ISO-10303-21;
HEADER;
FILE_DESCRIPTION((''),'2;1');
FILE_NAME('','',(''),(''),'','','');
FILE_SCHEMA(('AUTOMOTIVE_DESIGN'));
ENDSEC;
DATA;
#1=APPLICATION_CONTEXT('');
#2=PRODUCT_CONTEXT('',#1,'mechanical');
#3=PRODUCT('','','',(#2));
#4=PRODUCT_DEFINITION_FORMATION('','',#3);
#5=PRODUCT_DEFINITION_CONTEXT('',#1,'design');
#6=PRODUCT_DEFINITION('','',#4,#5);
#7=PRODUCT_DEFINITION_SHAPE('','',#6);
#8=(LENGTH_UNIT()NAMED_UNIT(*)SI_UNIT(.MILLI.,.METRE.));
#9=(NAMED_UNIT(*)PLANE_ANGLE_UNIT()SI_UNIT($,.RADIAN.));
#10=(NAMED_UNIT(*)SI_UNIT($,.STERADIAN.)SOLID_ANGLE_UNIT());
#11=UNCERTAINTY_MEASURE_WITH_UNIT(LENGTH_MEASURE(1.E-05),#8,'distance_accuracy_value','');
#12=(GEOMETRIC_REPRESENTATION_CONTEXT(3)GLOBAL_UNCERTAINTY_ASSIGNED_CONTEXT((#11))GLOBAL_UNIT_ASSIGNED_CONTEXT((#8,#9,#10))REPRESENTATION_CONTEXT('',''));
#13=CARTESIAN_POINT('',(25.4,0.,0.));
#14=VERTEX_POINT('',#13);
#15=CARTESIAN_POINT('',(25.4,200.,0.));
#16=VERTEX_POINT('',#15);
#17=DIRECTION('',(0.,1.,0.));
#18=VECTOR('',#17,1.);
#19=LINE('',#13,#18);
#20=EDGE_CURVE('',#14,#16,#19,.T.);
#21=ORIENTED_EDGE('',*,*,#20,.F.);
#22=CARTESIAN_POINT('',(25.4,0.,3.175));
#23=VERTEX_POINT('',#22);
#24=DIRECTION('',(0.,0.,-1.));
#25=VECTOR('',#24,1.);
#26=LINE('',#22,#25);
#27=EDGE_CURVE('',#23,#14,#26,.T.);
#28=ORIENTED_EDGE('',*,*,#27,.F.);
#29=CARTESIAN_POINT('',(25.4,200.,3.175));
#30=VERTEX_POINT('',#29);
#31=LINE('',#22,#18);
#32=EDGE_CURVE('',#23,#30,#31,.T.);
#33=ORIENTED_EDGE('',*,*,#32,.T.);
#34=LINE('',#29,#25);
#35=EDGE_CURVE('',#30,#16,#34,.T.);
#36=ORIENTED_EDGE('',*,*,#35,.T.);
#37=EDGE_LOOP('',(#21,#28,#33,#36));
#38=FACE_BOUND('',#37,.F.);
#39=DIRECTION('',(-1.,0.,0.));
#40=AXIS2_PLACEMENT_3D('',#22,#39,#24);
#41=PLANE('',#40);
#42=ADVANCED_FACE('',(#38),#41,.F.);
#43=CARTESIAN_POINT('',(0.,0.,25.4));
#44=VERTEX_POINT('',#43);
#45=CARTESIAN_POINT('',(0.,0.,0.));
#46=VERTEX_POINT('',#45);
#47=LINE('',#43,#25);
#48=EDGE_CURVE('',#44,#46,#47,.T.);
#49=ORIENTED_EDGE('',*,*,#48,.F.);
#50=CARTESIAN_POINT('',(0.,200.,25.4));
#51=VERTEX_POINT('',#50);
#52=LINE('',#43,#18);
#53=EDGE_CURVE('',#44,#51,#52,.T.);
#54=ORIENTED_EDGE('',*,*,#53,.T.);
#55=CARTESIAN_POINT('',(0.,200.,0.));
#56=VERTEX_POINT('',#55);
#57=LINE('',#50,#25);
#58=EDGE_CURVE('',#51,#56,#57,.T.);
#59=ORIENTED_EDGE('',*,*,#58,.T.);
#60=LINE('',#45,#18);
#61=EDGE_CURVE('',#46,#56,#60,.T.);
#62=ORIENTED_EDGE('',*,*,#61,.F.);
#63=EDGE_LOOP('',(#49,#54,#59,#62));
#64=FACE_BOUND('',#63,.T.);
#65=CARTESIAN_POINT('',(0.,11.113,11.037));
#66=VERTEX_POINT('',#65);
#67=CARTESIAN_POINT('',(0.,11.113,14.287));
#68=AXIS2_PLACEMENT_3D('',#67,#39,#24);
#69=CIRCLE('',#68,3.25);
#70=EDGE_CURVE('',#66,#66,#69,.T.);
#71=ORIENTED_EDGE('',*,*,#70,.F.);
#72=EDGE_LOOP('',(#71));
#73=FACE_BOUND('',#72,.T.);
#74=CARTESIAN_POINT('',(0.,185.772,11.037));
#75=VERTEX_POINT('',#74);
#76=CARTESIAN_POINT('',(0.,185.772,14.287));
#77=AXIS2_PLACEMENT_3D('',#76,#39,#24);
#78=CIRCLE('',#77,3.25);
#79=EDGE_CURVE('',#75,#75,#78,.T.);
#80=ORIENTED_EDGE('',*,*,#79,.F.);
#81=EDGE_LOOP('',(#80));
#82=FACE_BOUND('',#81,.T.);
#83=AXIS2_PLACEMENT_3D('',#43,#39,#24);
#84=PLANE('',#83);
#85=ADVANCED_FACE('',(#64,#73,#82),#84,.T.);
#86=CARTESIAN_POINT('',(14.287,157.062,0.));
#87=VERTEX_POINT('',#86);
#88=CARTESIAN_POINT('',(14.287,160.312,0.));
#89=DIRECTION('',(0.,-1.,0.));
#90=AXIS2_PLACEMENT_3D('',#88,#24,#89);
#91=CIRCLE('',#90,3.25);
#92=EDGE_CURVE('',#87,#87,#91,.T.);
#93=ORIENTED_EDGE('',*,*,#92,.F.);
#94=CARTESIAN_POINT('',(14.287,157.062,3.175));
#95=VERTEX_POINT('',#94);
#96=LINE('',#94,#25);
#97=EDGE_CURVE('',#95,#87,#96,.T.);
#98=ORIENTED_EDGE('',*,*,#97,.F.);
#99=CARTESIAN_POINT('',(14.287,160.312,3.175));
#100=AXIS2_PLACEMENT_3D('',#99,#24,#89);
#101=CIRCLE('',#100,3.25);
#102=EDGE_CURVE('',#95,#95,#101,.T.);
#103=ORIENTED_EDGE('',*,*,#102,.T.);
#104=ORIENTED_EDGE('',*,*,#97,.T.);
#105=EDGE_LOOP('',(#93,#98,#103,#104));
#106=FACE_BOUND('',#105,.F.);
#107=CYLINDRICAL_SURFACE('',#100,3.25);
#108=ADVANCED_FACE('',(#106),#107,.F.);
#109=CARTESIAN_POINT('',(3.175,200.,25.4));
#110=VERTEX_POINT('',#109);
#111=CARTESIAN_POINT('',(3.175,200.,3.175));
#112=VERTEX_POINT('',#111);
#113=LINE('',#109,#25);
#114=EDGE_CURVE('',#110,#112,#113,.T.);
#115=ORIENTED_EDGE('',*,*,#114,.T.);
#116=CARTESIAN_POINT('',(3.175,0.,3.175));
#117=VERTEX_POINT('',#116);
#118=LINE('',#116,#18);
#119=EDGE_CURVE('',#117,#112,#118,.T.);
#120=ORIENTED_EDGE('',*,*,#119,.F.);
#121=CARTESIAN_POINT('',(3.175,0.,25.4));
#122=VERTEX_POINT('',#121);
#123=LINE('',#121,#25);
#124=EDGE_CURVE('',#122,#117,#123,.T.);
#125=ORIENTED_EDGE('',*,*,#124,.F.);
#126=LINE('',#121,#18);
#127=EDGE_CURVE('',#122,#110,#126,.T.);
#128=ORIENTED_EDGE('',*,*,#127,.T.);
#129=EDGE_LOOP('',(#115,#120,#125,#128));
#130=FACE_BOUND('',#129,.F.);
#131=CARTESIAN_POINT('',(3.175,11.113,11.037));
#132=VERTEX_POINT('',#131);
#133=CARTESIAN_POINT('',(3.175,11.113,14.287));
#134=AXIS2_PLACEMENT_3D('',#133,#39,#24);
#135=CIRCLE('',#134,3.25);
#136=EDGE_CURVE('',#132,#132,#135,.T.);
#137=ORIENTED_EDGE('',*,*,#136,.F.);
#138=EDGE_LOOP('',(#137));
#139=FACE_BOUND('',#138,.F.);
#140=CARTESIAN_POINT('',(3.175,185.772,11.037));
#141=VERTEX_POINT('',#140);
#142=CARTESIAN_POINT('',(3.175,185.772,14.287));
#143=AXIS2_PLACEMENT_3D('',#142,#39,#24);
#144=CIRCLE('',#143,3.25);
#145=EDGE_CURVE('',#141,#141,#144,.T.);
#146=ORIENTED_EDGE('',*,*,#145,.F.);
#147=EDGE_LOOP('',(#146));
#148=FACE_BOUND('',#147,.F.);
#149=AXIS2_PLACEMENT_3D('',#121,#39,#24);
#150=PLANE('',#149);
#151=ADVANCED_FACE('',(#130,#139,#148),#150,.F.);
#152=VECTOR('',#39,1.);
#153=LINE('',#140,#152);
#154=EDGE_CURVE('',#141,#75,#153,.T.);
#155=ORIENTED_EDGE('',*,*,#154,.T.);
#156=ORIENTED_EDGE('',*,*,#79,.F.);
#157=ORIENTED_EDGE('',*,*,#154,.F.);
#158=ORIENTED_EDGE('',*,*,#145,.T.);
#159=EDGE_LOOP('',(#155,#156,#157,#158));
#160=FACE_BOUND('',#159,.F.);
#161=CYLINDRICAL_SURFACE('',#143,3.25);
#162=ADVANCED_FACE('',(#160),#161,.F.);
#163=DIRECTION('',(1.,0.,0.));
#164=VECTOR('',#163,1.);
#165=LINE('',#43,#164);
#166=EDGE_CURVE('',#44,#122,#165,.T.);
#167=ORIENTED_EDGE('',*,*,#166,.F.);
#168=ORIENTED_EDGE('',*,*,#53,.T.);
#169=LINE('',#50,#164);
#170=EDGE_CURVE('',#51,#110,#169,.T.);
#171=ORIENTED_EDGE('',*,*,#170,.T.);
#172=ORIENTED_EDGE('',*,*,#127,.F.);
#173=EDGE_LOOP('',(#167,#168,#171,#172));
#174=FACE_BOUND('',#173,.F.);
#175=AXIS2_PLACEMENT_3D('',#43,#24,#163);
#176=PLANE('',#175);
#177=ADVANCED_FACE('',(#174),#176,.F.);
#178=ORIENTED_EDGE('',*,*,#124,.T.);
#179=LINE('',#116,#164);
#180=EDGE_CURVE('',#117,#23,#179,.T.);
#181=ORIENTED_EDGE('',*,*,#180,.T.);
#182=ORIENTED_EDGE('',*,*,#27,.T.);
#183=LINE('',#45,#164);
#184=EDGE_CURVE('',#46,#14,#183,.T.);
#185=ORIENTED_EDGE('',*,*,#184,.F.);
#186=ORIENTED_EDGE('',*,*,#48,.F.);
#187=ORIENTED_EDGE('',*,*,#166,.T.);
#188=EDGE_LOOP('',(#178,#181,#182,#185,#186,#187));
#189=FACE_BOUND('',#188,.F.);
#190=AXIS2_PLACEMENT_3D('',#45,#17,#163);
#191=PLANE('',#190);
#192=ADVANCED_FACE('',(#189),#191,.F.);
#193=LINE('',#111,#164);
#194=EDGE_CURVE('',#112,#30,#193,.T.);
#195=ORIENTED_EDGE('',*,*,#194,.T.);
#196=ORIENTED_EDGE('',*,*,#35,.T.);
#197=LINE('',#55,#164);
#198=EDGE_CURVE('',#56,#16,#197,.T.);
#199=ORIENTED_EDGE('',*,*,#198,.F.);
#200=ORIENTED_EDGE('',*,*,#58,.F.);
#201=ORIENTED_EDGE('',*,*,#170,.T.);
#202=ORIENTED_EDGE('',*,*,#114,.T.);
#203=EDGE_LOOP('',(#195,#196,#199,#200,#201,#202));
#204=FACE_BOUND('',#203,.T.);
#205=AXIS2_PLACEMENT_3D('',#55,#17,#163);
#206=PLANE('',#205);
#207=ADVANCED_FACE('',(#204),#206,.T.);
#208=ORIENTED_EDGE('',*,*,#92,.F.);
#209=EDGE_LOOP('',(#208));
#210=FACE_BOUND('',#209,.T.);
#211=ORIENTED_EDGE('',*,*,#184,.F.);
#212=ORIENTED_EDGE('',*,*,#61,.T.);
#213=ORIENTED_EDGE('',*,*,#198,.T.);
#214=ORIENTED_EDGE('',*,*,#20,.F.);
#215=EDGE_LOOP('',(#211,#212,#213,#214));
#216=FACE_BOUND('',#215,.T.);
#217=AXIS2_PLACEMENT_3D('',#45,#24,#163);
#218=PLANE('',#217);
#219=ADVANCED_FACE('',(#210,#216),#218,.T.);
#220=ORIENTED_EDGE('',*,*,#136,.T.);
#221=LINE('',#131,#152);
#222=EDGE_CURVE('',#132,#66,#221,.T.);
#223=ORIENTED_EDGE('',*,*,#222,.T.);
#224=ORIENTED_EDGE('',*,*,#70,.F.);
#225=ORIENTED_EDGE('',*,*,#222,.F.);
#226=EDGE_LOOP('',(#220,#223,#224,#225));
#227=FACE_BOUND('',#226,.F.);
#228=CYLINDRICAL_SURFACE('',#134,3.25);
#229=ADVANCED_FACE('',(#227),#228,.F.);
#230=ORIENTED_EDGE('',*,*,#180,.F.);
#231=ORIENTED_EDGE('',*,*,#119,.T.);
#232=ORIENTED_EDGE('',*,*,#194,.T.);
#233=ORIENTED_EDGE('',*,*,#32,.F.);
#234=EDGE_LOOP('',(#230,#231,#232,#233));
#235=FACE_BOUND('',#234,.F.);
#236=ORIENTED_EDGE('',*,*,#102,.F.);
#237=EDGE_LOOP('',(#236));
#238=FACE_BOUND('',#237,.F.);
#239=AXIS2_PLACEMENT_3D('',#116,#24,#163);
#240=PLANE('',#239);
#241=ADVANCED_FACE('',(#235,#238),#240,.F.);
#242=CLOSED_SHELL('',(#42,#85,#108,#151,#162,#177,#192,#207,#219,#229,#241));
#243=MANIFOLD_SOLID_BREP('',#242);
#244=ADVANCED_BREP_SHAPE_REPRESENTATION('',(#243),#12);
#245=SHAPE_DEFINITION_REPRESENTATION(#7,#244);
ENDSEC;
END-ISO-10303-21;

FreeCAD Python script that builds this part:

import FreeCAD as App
import Part
import Sketcher
Q = App.Units.Quantity


def add_polygon(sketch, points):
    """Adds a closed chain of lines whose ends are joined by coincident constraints."""
    first, n = sketch.GeometryCount, len(points)
    for a, b in zip(points, points[1:] + points[:1]):
        sketch.addGeometry(Part.LineSegment(App.Vector(*a, 0), App.Vector(*b, 0)), False)
    for i in range(n):
        sketch.addConstraint(Sketcher.Constraint("Coincident", first + i, 2, first + (i + 1) % n, 1))

doc = App.newDocument("Part")
params = doc.addObject("Spreadsheet::Sheet", "Params")
for row, (alias, value) in enumerate([
    ("sketch1_width", "1 in"),
    ("sketch1_width2", "0.125 in"),
    ("pad1_length", "200 mm"),
    ("hole_diameter", "0.2559055 in"),
    ("hole2_diameter", "0.2559055 in"),
    ("hole2_depth", "1.1811024 in"),
    ("hole3_diameter", "0.2559055 in"),
    ("hole3_depth", "1.1811024 in"),
], start=1):
    params.set(f"A{row}", alias)
    params.set(f"B{row}", "=" + value)
    params.setAlias(f"B{row}", alias)

body = doc.addObject("PartDesign::Body", "Body")

sketch1 = body.newObject("Sketcher::SketchObject", "Sketch")
sketch1.AttachmentSupport = (doc.getObject("XZ_Plane"), [""])
sketch1.MapMode = "FlatFace"
add_polygon(sketch1, [(0, 0), (0, 25.4), (3.175, 25.4), (3.175, 3.175), (25.4, 3.175), (25.4, 0)])
sketch1.addConstraint(Sketcher.Constraint("Vertical", 0))
sketch1.addConstraint(Sketcher.Constraint("Horizontal", 1))
sketch1.addConstraint(Sketcher.Constraint("Vertical", 2))
sketch1.addConstraint(Sketcher.Constraint("Horizontal", 3))
sketch1.addConstraint(Sketcher.Constraint("Vertical", 4))
sketch1.addConstraint(Sketcher.Constraint("Horizontal", 5))
sketch1.addConstraint(Sketcher.Constraint("Coincident", 5, 2, -1, 1))
sketch1.addConstraint(Sketcher.Constraint("Equal", 5, 0))
sketch1.addConstraint(Sketcher.Constraint("Equal", 3, 2))
sketch1.addConstraint(Sketcher.Constraint("DistanceX", 5, 2, 5, 1, Q("1 in")))
sketch1.addConstraint(Sketcher.Constraint("DistanceX", 1, 1, 1, 2, Q("0.125 in")))
sketch1.setExpression("Constraints[15]", "Params.sketch1_width")
sketch1.setExpression("Constraints[16]", "Params.sketch1_width2")
pad1 = body.newObject("PartDesign::Pad", "Pad")
pad1.Profile = sketch1
pad1.setExpression("Length", "Params.pad1_length")
pad1.Reversed = True

sketch2 = body.newObject("Sketcher::SketchObject", "Sketch001")
sketch2.AttachmentSupport = (doc.getObject("YZ_Plane"), [""])
sketch2.MapMode = "FlatFace"
sketch2.AttachmentOffset = App.Placement(App.Vector(0, 0, 0.125 * 25.4), App.Rotation())
sketch2.addGeometry(Part.Circle(App.Vector(11.113, 14.287, 0), App.Vector(0, 0, 1), 3.25), False)
sketch2.addConstraint(Sketcher.Constraint("Diameter", 0, Q("0.2559 in")))
sketch2.addConstraint(Sketcher.Constraint("DistanceX", -1, 1, 0, 3, 11.113))
sketch2.addConstraint(Sketcher.Constraint("DistanceY", -1, 1, 0, 3, 14.287))
doc.recompute()
hole = body.newObject("PartDesign::Hole", "Hole")
hole.Profile = sketch2
hole.ThreadType = "None"
hole.setExpression("Diameter", "Params.hole_diameter")
hole.DepthType = "ThroughAll"

sketch3 = body.newObject("Sketcher::SketchObject", "Sketch002")
sketch3.AttachmentSupport = (doc.getObject("YZ_Plane"), [""])
sketch3.MapMode = "FlatFace"
sketch3.AttachmentOffset = App.Placement(App.Vector(0, 0, 0.125 * 25.4), App.Rotation())
sketch3.addGeometry(Part.Circle(App.Vector(185.772, 14.287, 0), App.Vector(0, 0, 1), 3.25), False)
sketch3.addConstraint(Sketcher.Constraint("Diameter", 0, Q("0.2559 in")))
sketch3.addConstraint(Sketcher.Constraint("DistanceX", -1, 1, 0, 3, 185.772))
sketch3.addConstraint(Sketcher.Constraint("DistanceY", -1, 1, 0, 3, 14.287))
doc.recompute()
hole2 = body.newObject("PartDesign::Hole", "Hole001")
hole2.Profile = sketch3
hole2.ThreadType = "None"
hole2.setExpression("Diameter", "Params.hole2_diameter")
hole2.DepthType = "Dimension"
hole2.setExpression("Depth", "Params.hole2_depth")
hole2.DrillPoint = "Angled"
hole2.DrillPointAngle = 118

sketch4 = body.newObject("Sketcher::SketchObject", "Sketch003")
sketch4.AttachmentSupport = (doc.getObject("XY_Plane"), [""])
sketch4.MapMode = "FlatFace"
sketch4.AttachmentOffset = App.Placement(App.Vector(0, 0, 0.125 * 25.4), App.Rotation())
sketch4.addGeometry(Part.Circle(App.Vector(14.287, 160.312, 0), App.Vector(0, 0, 1), 3.25), False)
sketch4.addConstraint(Sketcher.Constraint("Diameter", 0, Q("0.2559 in")))
sketch4.addConstraint(Sketcher.Constraint("DistanceY", -1, 1, 0, 3, Q("6.3115 in")))
sketch4.addConstraint(Sketcher.Constraint("DistanceX", -1, 1, 0, 3, 14.287))
doc.recompute()
hole3 = body.newObject("PartDesign::Hole", "Hole002")
hole3.Profile = sketch4
hole3.ThreadType = "None"
hole3.setExpression("Diameter", "Params.hole3_diameter")
hole3.DepthType = "Dimension"
hole3.setExpression("Depth", "Params.hole3_depth")
hole3.DrillPoint = "Angled"
hole3.DrillPointAngle = 118

doc.recompute()
